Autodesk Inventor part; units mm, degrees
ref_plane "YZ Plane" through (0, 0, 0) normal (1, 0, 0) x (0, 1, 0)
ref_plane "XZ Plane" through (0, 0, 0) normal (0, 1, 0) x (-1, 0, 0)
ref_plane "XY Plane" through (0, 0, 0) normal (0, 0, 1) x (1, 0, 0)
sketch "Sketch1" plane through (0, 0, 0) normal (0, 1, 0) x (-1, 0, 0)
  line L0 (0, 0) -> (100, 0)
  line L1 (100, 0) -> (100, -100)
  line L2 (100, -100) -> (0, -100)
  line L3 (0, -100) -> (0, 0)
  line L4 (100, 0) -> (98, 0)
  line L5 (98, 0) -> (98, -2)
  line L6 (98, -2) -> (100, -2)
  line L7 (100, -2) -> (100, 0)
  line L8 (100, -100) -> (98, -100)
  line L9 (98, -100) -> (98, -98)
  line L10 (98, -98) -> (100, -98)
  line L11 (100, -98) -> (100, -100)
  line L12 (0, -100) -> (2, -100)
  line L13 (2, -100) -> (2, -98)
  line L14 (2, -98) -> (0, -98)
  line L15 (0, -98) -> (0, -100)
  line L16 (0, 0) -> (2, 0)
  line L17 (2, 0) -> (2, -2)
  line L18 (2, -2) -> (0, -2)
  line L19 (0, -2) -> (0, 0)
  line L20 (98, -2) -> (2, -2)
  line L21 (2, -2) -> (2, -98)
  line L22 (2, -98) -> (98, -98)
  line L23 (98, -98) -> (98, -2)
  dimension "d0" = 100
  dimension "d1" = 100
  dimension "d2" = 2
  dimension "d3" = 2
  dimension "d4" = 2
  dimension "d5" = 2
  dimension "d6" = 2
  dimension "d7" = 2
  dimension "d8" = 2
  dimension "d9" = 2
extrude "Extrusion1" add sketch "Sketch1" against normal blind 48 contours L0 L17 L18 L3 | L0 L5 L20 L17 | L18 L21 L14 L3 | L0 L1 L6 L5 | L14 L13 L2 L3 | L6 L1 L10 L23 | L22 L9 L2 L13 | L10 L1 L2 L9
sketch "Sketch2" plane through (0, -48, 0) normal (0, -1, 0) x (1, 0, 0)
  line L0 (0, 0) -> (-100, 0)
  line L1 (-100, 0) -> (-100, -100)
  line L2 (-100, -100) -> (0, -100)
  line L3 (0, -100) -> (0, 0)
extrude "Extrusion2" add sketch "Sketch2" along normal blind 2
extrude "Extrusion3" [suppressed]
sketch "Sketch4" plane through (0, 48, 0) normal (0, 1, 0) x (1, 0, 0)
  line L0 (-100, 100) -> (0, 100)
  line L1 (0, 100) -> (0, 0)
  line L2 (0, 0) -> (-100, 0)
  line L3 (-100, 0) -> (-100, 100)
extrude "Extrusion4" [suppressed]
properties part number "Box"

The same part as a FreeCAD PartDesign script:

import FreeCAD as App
import Part
import Sketcher
Q = App.Units.Quantity


def add_polygon(sketch, points):
    """Adds a closed chain of lines whose ends are joined by coincident constraints."""
    first, n = sketch.GeometryCount, len(points)
    for a, b in zip(points, points[1:] + points[:1]):
        sketch.addGeometry(Part.LineSegment(App.Vector(*a, 0), App.Vector(*b, 0)), False)
    for i in range(n):
        sketch.addConstraint(Sketcher.Constraint("Coincident", first + i, 2, first + (i + 1) % n, 1))

doc = App.newDocument("Part")
body = doc.addObject("PartDesign::Body", "Body")

sketch1 = body.newObject("Sketcher::SketchObject", "Sketch")
sketch1.AttachmentSupport = (doc.getObject("XZ_Plane"), [""])
sketch1.MapMode = "FlatFace"
add_polygon(sketch1, [(0, 0), (0, -100), (-100, -100), (-100, 0)])
add_polygon(sketch1, [(-2, -2), (-98, -2), (-98, -98), (-2, -98)])
sketch1.addConstraint([
    Sketcher.Constraint("Vertical", 0),
    Sketcher.Constraint("Horizontal", 1),
    Sketcher.Constraint("Vertical", 2),
    Sketcher.Constraint("Horizontal", 3),
    Sketcher.Constraint("Horizontal", 4),
    Sketcher.Constraint("Vertical", 5),
    Sketcher.Constraint("Horizontal", 6),
    Sketcher.Constraint("Vertical", 7),
    Sketcher.Constraint("Coincident", 3, 2, -1, 1),
    Sketcher.Constraint("Equal", 3, 0),
    Sketcher.Constraint("Equal", 6, 5),
    Sketcher.Constraint("DistanceX", 1, 2, 1, 1, Q("100 mm")),
    Sketcher.Constraint("DistanceY", 4, 2, -1, 1, Q("2 mm")),
    Sketcher.Constraint("DistanceX", 6, 2, -1, 1, Q("2 mm")),
    Sketcher.Constraint("DistanceX", 2, 2, 4, 2, Q("2 mm")),
])
pad1 = body.newObject("PartDesign::Pad", "Pad")
pad1.Profile = sketch1
pad1.Length = 48

sketch2 = body.newObject("Sketcher::SketchObject", "Sketch001")
sketch2.AttachmentSupport = (doc.getObject("XZ_Plane"), [""])
sketch2.MapMode = "FlatFace"
sketch2.AttachmentOffset = App.Placement(App.Vector(0, 0, 48), App.Rotation())
add_polygon(sketch2, [(0, -100), (0, 0), (-100, 0), (-100, -100)])
sketch2.addConstraint([
    Sketcher.Constraint("Vertical", 0),
    Sketcher.Constraint("Horizontal", 1),
    Sketcher.Constraint("Vertical", 2),
    Sketcher.Constraint("Horizontal", 3),
    Sketcher.Constraint("Coincident", 0, 2, -1, 1),
    Sketcher.Constraint("Equal", 3, 0),
    Sketcher.Constraint("DistanceX", 1, 2, 1, 1, Q("100 mm")),
])
pad2 = body.newObject("PartDesign::Pad", "Pad001")
pad2.Profile = sketch2
pad2.Length = 2

doc.recompute()
